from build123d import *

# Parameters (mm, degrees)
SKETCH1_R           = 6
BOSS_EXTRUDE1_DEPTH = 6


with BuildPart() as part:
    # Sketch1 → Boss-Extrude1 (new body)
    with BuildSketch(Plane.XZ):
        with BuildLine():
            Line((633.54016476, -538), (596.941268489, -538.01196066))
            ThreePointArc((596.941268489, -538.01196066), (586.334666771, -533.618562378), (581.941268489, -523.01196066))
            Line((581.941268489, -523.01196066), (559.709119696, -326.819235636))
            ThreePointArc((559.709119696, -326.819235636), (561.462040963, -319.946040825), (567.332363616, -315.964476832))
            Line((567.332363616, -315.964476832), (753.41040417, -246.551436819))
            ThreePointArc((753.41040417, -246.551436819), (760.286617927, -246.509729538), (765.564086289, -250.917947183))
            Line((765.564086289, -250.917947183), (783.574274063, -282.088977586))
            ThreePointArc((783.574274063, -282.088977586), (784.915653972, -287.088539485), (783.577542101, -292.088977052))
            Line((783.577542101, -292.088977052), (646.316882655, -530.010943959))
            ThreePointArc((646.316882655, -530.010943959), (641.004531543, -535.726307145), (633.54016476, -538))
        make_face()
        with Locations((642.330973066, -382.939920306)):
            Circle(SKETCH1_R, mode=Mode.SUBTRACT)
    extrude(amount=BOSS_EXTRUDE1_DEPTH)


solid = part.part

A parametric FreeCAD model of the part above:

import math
import FreeCAD as App
import Part
import Sketcher

V = App.Vector
Q = App.Units.Quantity

doc = App.newDocument("Part")
body = doc.addObject("PartDesign::Body", "Body")

sketch1 = body.newObject("Sketcher::SketchObject", "Sketch")
sketch1.AttachmentSupport = (doc.getObject("XZ_Plane"), [""])
sketch1.MapMode = "FlatFace"
sketch1.addGeometry(Part.LineSegment(V(596.941268, -538.011961, 0), V(633.540165, -538, 0)), False)
sketch1.addGeometry(Part.ArcOfCircle(Part.Circle(V(633.051965, -523.007947, 0), V(0, 0, 1), 15), math.radians(-88.134886), math.radians(-27.831085)), False)
sketch1.addGeometry(Part.LineSegment(V(646.316883, -530.010944, 0), V(783.577542, -292.088977, 0)), False)
sketch1.addGeometry(Part.ArcOfCircle(Part.Circle(V(774.915655, -287.091808, 0), V(0, 0, 1), 10), math.radians(-29.981276), math.radians(30.018724)), False)
sketch1.addGeometry(Part.LineSegment(V(783.574274, -282.088978, 0), V(765.564086, -250.917947, 0)), False)
sketch1.addGeometry(Part.ArcOfCircle(Part.Circle(V(756.905467, -255.920777, 0), V(0, 0, 1), 10), math.radians(30.018724), math.radians(110.457119)), False)
sketch1.addGeometry(Part.LineSegment(V(753.410404, -246.551437, 0), V(567.332364, -315.964477, 0)), False)
sketch1.addGeometry(Part.ArcOfCircle(Part.Circle(V(569.645527, -325.693263, 0), V(0, 0, 1), 10), math.radians(103.374581), math.radians(186.465059)), False)
sketch1.addGeometry(Part.LineSegment(V(559.70912, -326.819236, 0), V(581.941268, -523.011961, 0)), False)
sketch1.addGeometry(Part.ArcOfCircle(Part.Circle(V(596.941268, -523.011961, 0), V(0, 0, 1), 15), math.radians(180), math.radians(270)), False)
sketch1.addGeometry(Part.Circle(V(642.330973, -382.93992, 0), V(0, 0, 1), 6), False)
sketch1.addConstraint(Sketcher.Constraint("Coincident", 0, 2, 1, 1))
sketch1.addConstraint(Sketcher.Constraint("Coincident", 1, 2, 2, 1))
sketch1.addConstraint(Sketcher.Constraint("Tangent", 2, 2, 3, 1))
sketch1.addConstraint(Sketcher.Constraint("Tangent", 3, 2, 4, 1))
sketch1.addConstraint(Sketcher.Constraint("Tangent", 4, 2, 5, 1))
sketch1.addConstraint(Sketcher.Constraint("Tangent", 5, 2, 6, 1))
sketch1.addConstraint(Sketcher.Constraint("Coincident", 6, 2, 7, 1))
sketch1.addConstraint(Sketcher.Constraint("Tangent", 7, 2, 8, 1))
sketch1.addConstraint(Sketcher.Constraint("Coincident", 8, 2, 9, 1))
sketch1.addConstraint(Sketcher.Constraint("Coincident", 9, 2, 0, 1))
sketch1.addConstraint(Sketcher.Constraint("Equal", 3, 5))
sketch1.addConstraint(Sketcher.Constraint("Equal", 5, 7))
sketch1.addConstraint(Sketcher.Constraint("Equal", 1, 9))
sketch1.addConstraint(Sketcher.Constraint("Horizontal", 9, 3, 8, 2))
sketch1.addConstraint(Sketcher.Constraint("Diameter", 10, Q("12 mm")))
sketch1.addConstraint(Sketcher.Constraint("Radius", 1, Q("15 mm")))
sketch1.addConstraint(Sketcher.Constraint("Radius", 3, Q("10 mm")))
sketch1.addConstraint(Sketcher.Constraint("Distance", 4, Q("36 mm")))
sketch1.addConstraint(Sketcher.Constraint("DistanceY", 0, 2, -1, 1, Q("538 mm")))
sketch1.addConstraint(Sketcher.Constraint("DistanceY", 2, 2, 3, 2, Q("9.999999 mm")))
sketch1.addConstraint(Sketcher.Constraint("DistanceX", 8, 2, 9, 2, Q("15 mm")))
sketch1.addConstraint(Sketcher.Constraint("Distance", 0, Q("36.598898 mm")))
sketch1.addConstraint(Sketcher.Constraint("DistanceX", 1, 3, 5, 3, Q("123.853501 mm")))
sketch1.addConstraint(Sketcher.Constraint("DistanceX", 9, 3, 5, 3, Q("159.964198 mm")))
sketch1.addConstraint(Sketcher.Constraint("DistanceY", 2, 2, 5, 3, Q("36.1682 mm")))
sketch1.addConstraint(Sketcher.Constraint("DistanceX", 10, 3, 3, 2, Q("141.243301 mm")))
sketch1.addConstraint(Sketcher.Constraint("DistanceY", 6, 2, 5, 3, Q("60.0437 mm")))
sketch1.addConstraint(Sketcher.Constraint("Distance", 2, Q("274.676812 mm")))
sketch1.addConstraint(Sketcher.Constraint("Distance", 6, Q("198.60314 mm")))
sketch1.addConstraint(Sketcher.Constraint("DistanceX", -1, 1, 9, 3, Q("596.941268 mm")))
sketch1.addConstraint(Sketcher.Constraint("DistanceY", 9, 3, -1, 1, Q("523.011961 mm")))
sketch1.addConstraint(Sketcher.Constraint("DistanceY", 10, 3, -1, 1, Q("382.93992 mm")))
sketch1.addConstraint(Sketcher.Constraint("DistanceX", -1, 1, 7, 2, Q("559.70912 mm")))
pad1 = body.newObject("PartDesign::Pad", "Pad")
pad1.Profile = sketch1
pad1.Length = 6

doc.recompute()
